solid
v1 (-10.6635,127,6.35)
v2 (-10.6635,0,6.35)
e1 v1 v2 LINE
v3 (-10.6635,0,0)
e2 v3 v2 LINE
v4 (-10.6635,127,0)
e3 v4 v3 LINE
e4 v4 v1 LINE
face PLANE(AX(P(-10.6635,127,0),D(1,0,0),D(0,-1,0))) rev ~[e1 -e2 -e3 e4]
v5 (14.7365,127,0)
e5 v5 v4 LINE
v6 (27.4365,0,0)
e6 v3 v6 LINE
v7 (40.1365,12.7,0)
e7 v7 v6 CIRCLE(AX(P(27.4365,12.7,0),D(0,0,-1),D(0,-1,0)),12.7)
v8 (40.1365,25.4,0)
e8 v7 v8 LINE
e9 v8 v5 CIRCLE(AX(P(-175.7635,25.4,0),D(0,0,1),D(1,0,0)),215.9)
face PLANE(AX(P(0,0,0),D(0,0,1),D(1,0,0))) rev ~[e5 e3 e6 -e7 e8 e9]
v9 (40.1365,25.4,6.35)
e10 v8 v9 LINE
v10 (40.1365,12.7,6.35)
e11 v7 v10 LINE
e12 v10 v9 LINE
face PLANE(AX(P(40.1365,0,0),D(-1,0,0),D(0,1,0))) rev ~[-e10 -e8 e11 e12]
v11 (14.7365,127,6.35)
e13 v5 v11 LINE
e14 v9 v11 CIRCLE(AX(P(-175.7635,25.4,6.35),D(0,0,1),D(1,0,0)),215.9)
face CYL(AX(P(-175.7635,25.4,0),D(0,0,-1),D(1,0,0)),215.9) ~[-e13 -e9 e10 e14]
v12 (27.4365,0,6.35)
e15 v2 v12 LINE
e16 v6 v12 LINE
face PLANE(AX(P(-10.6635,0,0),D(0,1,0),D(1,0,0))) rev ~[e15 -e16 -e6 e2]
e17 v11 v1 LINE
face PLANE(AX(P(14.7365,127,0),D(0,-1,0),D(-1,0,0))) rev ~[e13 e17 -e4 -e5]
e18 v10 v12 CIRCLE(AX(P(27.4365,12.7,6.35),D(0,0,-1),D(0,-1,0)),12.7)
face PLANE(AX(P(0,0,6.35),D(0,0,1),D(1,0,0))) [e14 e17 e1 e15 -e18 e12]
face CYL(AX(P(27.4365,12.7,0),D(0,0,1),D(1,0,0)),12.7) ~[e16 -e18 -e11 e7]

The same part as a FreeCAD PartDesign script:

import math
import FreeCAD as App
import Part
import Sketcher
from FreeCAD import Vector
Q = App.Units.Quantity


def edges_at(feature, points):
    """Names of the edges that pass closest to the given points."""
    edges = feature.Shape.Edges
    near = lambda p: min(range(len(edges)), key=lambda i: edges[i].distToShape(Part.Vertex(*p))[0])
    return sorted({f"Edge{near(p) + 1}" for p in points})

doc = App.newDocument("Part")
body = doc.addObject("PartDesign::Body", "Body")

# Sketch on XY plane
sketch1 = doc.addObject("Sketcher::SketchObject", "Sketch")
body.addObject(sketch1)
sketch1.AttachmentSupport = (doc.XY_Plane, [""])
sketch1.MapMode = "FlatFace"
sketch1.addGeometry(Part.LineSegment(Vector(-10.6635, 127, 0), Vector(-10.6635, 0, 0)), False)
sketch1.addGeometry(Part.LineSegment(Vector(-10.6635, 0, 0), Vector(40.1365, 0, 0)), False)
sketch1.addGeometry(Part.LineSegment(Vector(40.1365, 0, 0), Vector(40.1365, 25.4, 0)), False)
sketch1.addGeometry(Part.ArcOfCircle(Part.Circle(Vector(-175.7635, 25.4, 0), Vector(0, 0, 1), 215.9), math.radians(0), math.radians(28.072487)), False)
sketch1.addGeometry(Part.LineSegment(Vector(14.7365, 127, 0), Vector(-10.6635, 127, 0)), False)
sketch1.addConstraint(Sketcher.Constraint("Coincident", 0, 2, 1, 1))
sketch1.addConstraint(Sketcher.Constraint("Coincident", 1, 2, 2, 1))
sketch1.addConstraint(Sketcher.Constraint("Tangent", 2, 2, 3, 1))
sketch1.addConstraint(Sketcher.Constraint("Coincident", 3, 2, 4, 1))
sketch1.addConstraint(Sketcher.Constraint("Coincident", 4, 2, 0, 1))
sketch1.addConstraint(Sketcher.Constraint("Vertical", 0))
sketch1.addConstraint(Sketcher.Constraint("Horizontal", 1))
sketch1.addConstraint(Sketcher.Constraint("Vertical", 2))
sketch1.addConstraint(Sketcher.Constraint("Horizontal", 4))
sketch1.addConstraint(Sketcher.Constraint("PointOnObject", 0, 2, -1))
sketch1.addConstraint(Sketcher.Constraint("Equal", 4, 2))
sketch1.addConstraint(Sketcher.Constraint("DistanceX", 1, 1, 1, 2, Q("2 in")))
sketch1.addConstraint(Sketcher.Constraint("DistanceX", 4, 2, 4, 1, Q("1 in")))
sketch1.addConstraint(Sketcher.Constraint("DistanceY", 0, 2, 0, 1, Q("5 in")))
sketch1.addConstraint(Sketcher.Constraint("DistanceX", 3, 3, -1, 1, 175.7635))
pad1 = doc.addObject("PartDesign::Pad", "Pad")
body.addObject(pad1)
pad1.Profile = sketch1
pad1.Length = Q("0.25 in")
doc.recompute()

fillet = doc.addObject("PartDesign::Fillet", "Fillet")
body.addObject(fillet)
fillet.Base = (pad1, edges_at(pad1, [(40.136, 0, 3.175)]))
fillet.Radius = Q("0.5 in")

doc.recompute()
